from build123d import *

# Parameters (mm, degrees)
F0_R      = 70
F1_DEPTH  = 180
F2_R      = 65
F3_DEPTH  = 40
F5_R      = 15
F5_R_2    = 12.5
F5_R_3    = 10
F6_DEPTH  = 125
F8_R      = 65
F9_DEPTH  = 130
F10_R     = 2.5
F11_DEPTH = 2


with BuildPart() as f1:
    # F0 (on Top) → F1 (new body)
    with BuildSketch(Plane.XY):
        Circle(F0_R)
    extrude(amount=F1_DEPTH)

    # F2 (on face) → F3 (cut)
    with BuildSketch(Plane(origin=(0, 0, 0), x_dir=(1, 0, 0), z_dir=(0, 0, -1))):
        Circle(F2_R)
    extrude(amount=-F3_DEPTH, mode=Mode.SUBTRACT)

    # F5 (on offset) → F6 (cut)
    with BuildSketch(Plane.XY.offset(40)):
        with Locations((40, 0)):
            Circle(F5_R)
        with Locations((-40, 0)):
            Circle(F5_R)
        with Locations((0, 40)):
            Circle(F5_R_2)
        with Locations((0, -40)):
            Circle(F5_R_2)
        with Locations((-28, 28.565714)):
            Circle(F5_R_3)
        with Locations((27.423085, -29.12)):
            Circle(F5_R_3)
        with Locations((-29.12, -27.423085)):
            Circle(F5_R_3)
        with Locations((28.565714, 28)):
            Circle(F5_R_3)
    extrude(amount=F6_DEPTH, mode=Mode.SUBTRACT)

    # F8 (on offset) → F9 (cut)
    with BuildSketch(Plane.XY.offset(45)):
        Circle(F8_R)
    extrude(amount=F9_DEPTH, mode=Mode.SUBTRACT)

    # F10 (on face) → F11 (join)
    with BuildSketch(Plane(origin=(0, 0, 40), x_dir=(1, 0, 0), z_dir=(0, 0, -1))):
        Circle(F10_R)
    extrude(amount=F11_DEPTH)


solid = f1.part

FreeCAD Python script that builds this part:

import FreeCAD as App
import Part
import Sketcher
Q = App.Units.Quantity

doc = App.newDocument("Part")
body = doc.addObject("PartDesign::Body", "Body")

# Sketch on XY plane
sketch1 = body.newObject("Sketcher::SketchObject", "Sketch")
sketch1.AttachmentSupport = (doc.getObject("XY_Plane"), [""])
sketch1.MapMode = "FlatFace"
sketch1.addGeometry(Part.Circle(App.Vector(0, 0, 0), App.Vector(0, 0, 1), 70), False)
sketch1.addConstraint(Sketcher.Constraint("Coincident", 0, 3, -1, 1))
sketch1.addConstraint(Sketcher.Constraint("Diameter", 0, Q("140 mm")))
pad1 = body.newObject("PartDesign::Pad", "Pad")
pad1.Profile = sketch1
pad1.Length = 180

# Sketch on XY plane
sketch2 = body.newObject("Sketcher::SketchObject", "Sketch001")
sketch2.AttachmentSupport = (doc.getObject("XY_Plane"), [""])
sketch2.MapMode = "FlatFace"
sketch2.addGeometry(Part.Circle(App.Vector(0, 0, 0), App.Vector(0, 0, 1), 65), False)
sketch2.addConstraint(Sketcher.Constraint("Coincident", 0, 3, -1, 1))
sketch2.addConstraint(Sketcher.Constraint("Diameter", 0, Q("130 mm")))
pocket1 = body.newObject("PartDesign::Pocket", "Pocket")
pocket1.Profile = sketch2
pocket1.Length = 40
pocket1.Reversed = True

# Sketch on XY plane
sketch3 = body.newObject("Sketcher::SketchObject", "Sketch002")
sketch3.AttachmentSupport = (doc.getObject("XY_Plane"), [""])
sketch3.MapMode = "FlatFace"
sketch3.AttachmentOffset = App.Placement(App.Vector(0, 0, 40), App.Rotation())
sketch3.addGeometry(Part.Circle(App.Vector(40, 0, 0), App.Vector(0, 0, 1), 15), False)
sketch3.addGeometry(Part.Circle(App.Vector(-40, 0, 0), App.Vector(0, 0, 1), 15), False)
sketch3.addGeometry(Part.Circle(App.Vector(0, 40, 0), App.Vector(0, 0, 1), 12), False)
sketch3.addGeometry(Part.Circle(App.Vector(0, -40, 0), App.Vector(0, 0, 1), 12), False)
sketch3.addGeometry(Part.Circle(App.Vector(-28, 29, 0), App.Vector(0, 0, 1), 10), False)
sketch3.addGeometry(Part.Circle(App.Vector(27, -29, 0), App.Vector(0, 0, 1), 10), False)
sketch3.addGeometry(Part.Circle(App.Vector(-29, -27, 0), App.Vector(0, 0, 1), 10), False)
sketch3.addGeometry(Part.Circle(App.Vector(29, 28, 0), App.Vector(0, 0, 1), 10), False)
sketch3.addConstraint(Sketcher.Constraint("Equal", 0, 1))
sketch3.addConstraint(Sketcher.Constraint("Equal", 2, 3))
sketch3.addConstraint(Sketcher.Constraint("Equal", 4, 5))
sketch3.addConstraint(Sketcher.Constraint("Equal", 5, 6))
sketch3.addConstraint(Sketcher.Constraint("Equal", 6, 7))
sketch3.addConstraint(Sketcher.Constraint("Symmetric", 0, 3, 1, 3, -1, 1))
sketch3.addConstraint(Sketcher.Constraint("Symmetric", 2, 3, 3, 3, -1, 1))
sketch3.addConstraint(Sketcher.Constraint("PointOnObject", 0, 3, -1))
sketch3.addConstraint(Sketcher.Constraint("PointOnObject", 2, 3, -2))
sketch3.addConstraint(Sketcher.Constraint("Diameter", 0, Q("30 mm")))
sketch3.addConstraint(Sketcher.Constraint("Diameter", 2, Q("25 mm")))
sketch3.addConstraint(Sketcher.Constraint("Diameter", 4, Q("20 mm")))
sketch3.addConstraint(Sketcher.Constraint("DistanceX", -1, 1, 0, 3, Q("40 mm")))
sketch3.addConstraint(Sketcher.Constraint("DistanceY", -1, 1, 2, 3, Q("40 mm")))
sketch3.addConstraint(Sketcher.Constraint("DistanceX", 4, 3, -1, 1, Q("28 mm")))
sketch3.addConstraint(Sketcher.Constraint("DistanceY", -1, 1, 7, 3, Q("28 mm")))
sketch3.addConstraint(Sketcher.Constraint("DistanceY", 5, 3, -1, 1, Q("29.12 mm")))
sketch3.addConstraint(Sketcher.Constraint("DistanceX", 6, 3, -1, 1, Q("29.12 mm")))
sketch3.addConstraint(Sketcher.Constraint("DistanceY", 6, 3, 4, 3, Q("55.988799 mm")))
sketch3.addConstraint(Sketcher.Constraint("DistanceX", 5, 3, 7, 3, Q("1.142629 mm")))
sketch3.addConstraint(Sketcher.Constraint("DistanceY", -1, 1, 4, 3, Q("28.565714 mm")))
sketch3.addConstraint(Sketcher.Constraint("DistanceX", -1, 1, 5, 3, Q("27.423085 mm")))
pocket2 = body.newObject("PartDesign::Pocket", "Pocket001")
pocket2.Profile = sketch3
pocket2.Length = 125
pocket2.Reversed = True

# Sketch on XY plane
sketch4 = body.newObject("Sketcher::SketchObject", "Sketch003")
sketch4.AttachmentSupport = (doc.getObject("XY_Plane"), [""])
sketch4.MapMode = "FlatFace"
sketch4.AttachmentOffset = App.Placement(App.Vector(0, 0, 45), App.Rotation())
sketch4.addGeometry(Part.Circle(App.Vector(0, 0, 0), App.Vector(0, 0, 1), 65), False)
sketch4.addConstraint(Sketcher.Constraint("Coincident", 0, 3, -1, 1))
sketch4.addConstraint(Sketcher.Constraint("Diameter", 0, Q("130 mm")))
pocket3 = body.newObject("PartDesign::Pocket", "Pocket002")
pocket3.Profile = sketch4
pocket3.Length = 130
pocket3.Reversed = True

# Sketch on XY plane
sketch5 = body.newObject("Sketcher::SketchObject", "Sketch004")
sketch5.AttachmentSupport = (doc.getObject("XY_Plane"), [""])
sketch5.MapMode = "FlatFace"
sketch5.AttachmentOffset = App.Placement(App.Vector(0, 0, 40), App.Rotation())
sketch5.addGeometry(Part.Circle(App.Vector(0, 0, 0), App.Vector(0, 0, 1), 2.5), False)
sketch5.addConstraint(Sketcher.Constraint("Coincident", 0, 3, -1, 1))
sketch5.addConstraint(Sketcher.Constraint("Diameter", 0, Q("5 mm")))
pad2 = body.newObject("PartDesign::Pad", "Pad001")
pad2.Profile = sketch5
pad2.Length = 2
pad2.Reversed = True

doc.recompute()
